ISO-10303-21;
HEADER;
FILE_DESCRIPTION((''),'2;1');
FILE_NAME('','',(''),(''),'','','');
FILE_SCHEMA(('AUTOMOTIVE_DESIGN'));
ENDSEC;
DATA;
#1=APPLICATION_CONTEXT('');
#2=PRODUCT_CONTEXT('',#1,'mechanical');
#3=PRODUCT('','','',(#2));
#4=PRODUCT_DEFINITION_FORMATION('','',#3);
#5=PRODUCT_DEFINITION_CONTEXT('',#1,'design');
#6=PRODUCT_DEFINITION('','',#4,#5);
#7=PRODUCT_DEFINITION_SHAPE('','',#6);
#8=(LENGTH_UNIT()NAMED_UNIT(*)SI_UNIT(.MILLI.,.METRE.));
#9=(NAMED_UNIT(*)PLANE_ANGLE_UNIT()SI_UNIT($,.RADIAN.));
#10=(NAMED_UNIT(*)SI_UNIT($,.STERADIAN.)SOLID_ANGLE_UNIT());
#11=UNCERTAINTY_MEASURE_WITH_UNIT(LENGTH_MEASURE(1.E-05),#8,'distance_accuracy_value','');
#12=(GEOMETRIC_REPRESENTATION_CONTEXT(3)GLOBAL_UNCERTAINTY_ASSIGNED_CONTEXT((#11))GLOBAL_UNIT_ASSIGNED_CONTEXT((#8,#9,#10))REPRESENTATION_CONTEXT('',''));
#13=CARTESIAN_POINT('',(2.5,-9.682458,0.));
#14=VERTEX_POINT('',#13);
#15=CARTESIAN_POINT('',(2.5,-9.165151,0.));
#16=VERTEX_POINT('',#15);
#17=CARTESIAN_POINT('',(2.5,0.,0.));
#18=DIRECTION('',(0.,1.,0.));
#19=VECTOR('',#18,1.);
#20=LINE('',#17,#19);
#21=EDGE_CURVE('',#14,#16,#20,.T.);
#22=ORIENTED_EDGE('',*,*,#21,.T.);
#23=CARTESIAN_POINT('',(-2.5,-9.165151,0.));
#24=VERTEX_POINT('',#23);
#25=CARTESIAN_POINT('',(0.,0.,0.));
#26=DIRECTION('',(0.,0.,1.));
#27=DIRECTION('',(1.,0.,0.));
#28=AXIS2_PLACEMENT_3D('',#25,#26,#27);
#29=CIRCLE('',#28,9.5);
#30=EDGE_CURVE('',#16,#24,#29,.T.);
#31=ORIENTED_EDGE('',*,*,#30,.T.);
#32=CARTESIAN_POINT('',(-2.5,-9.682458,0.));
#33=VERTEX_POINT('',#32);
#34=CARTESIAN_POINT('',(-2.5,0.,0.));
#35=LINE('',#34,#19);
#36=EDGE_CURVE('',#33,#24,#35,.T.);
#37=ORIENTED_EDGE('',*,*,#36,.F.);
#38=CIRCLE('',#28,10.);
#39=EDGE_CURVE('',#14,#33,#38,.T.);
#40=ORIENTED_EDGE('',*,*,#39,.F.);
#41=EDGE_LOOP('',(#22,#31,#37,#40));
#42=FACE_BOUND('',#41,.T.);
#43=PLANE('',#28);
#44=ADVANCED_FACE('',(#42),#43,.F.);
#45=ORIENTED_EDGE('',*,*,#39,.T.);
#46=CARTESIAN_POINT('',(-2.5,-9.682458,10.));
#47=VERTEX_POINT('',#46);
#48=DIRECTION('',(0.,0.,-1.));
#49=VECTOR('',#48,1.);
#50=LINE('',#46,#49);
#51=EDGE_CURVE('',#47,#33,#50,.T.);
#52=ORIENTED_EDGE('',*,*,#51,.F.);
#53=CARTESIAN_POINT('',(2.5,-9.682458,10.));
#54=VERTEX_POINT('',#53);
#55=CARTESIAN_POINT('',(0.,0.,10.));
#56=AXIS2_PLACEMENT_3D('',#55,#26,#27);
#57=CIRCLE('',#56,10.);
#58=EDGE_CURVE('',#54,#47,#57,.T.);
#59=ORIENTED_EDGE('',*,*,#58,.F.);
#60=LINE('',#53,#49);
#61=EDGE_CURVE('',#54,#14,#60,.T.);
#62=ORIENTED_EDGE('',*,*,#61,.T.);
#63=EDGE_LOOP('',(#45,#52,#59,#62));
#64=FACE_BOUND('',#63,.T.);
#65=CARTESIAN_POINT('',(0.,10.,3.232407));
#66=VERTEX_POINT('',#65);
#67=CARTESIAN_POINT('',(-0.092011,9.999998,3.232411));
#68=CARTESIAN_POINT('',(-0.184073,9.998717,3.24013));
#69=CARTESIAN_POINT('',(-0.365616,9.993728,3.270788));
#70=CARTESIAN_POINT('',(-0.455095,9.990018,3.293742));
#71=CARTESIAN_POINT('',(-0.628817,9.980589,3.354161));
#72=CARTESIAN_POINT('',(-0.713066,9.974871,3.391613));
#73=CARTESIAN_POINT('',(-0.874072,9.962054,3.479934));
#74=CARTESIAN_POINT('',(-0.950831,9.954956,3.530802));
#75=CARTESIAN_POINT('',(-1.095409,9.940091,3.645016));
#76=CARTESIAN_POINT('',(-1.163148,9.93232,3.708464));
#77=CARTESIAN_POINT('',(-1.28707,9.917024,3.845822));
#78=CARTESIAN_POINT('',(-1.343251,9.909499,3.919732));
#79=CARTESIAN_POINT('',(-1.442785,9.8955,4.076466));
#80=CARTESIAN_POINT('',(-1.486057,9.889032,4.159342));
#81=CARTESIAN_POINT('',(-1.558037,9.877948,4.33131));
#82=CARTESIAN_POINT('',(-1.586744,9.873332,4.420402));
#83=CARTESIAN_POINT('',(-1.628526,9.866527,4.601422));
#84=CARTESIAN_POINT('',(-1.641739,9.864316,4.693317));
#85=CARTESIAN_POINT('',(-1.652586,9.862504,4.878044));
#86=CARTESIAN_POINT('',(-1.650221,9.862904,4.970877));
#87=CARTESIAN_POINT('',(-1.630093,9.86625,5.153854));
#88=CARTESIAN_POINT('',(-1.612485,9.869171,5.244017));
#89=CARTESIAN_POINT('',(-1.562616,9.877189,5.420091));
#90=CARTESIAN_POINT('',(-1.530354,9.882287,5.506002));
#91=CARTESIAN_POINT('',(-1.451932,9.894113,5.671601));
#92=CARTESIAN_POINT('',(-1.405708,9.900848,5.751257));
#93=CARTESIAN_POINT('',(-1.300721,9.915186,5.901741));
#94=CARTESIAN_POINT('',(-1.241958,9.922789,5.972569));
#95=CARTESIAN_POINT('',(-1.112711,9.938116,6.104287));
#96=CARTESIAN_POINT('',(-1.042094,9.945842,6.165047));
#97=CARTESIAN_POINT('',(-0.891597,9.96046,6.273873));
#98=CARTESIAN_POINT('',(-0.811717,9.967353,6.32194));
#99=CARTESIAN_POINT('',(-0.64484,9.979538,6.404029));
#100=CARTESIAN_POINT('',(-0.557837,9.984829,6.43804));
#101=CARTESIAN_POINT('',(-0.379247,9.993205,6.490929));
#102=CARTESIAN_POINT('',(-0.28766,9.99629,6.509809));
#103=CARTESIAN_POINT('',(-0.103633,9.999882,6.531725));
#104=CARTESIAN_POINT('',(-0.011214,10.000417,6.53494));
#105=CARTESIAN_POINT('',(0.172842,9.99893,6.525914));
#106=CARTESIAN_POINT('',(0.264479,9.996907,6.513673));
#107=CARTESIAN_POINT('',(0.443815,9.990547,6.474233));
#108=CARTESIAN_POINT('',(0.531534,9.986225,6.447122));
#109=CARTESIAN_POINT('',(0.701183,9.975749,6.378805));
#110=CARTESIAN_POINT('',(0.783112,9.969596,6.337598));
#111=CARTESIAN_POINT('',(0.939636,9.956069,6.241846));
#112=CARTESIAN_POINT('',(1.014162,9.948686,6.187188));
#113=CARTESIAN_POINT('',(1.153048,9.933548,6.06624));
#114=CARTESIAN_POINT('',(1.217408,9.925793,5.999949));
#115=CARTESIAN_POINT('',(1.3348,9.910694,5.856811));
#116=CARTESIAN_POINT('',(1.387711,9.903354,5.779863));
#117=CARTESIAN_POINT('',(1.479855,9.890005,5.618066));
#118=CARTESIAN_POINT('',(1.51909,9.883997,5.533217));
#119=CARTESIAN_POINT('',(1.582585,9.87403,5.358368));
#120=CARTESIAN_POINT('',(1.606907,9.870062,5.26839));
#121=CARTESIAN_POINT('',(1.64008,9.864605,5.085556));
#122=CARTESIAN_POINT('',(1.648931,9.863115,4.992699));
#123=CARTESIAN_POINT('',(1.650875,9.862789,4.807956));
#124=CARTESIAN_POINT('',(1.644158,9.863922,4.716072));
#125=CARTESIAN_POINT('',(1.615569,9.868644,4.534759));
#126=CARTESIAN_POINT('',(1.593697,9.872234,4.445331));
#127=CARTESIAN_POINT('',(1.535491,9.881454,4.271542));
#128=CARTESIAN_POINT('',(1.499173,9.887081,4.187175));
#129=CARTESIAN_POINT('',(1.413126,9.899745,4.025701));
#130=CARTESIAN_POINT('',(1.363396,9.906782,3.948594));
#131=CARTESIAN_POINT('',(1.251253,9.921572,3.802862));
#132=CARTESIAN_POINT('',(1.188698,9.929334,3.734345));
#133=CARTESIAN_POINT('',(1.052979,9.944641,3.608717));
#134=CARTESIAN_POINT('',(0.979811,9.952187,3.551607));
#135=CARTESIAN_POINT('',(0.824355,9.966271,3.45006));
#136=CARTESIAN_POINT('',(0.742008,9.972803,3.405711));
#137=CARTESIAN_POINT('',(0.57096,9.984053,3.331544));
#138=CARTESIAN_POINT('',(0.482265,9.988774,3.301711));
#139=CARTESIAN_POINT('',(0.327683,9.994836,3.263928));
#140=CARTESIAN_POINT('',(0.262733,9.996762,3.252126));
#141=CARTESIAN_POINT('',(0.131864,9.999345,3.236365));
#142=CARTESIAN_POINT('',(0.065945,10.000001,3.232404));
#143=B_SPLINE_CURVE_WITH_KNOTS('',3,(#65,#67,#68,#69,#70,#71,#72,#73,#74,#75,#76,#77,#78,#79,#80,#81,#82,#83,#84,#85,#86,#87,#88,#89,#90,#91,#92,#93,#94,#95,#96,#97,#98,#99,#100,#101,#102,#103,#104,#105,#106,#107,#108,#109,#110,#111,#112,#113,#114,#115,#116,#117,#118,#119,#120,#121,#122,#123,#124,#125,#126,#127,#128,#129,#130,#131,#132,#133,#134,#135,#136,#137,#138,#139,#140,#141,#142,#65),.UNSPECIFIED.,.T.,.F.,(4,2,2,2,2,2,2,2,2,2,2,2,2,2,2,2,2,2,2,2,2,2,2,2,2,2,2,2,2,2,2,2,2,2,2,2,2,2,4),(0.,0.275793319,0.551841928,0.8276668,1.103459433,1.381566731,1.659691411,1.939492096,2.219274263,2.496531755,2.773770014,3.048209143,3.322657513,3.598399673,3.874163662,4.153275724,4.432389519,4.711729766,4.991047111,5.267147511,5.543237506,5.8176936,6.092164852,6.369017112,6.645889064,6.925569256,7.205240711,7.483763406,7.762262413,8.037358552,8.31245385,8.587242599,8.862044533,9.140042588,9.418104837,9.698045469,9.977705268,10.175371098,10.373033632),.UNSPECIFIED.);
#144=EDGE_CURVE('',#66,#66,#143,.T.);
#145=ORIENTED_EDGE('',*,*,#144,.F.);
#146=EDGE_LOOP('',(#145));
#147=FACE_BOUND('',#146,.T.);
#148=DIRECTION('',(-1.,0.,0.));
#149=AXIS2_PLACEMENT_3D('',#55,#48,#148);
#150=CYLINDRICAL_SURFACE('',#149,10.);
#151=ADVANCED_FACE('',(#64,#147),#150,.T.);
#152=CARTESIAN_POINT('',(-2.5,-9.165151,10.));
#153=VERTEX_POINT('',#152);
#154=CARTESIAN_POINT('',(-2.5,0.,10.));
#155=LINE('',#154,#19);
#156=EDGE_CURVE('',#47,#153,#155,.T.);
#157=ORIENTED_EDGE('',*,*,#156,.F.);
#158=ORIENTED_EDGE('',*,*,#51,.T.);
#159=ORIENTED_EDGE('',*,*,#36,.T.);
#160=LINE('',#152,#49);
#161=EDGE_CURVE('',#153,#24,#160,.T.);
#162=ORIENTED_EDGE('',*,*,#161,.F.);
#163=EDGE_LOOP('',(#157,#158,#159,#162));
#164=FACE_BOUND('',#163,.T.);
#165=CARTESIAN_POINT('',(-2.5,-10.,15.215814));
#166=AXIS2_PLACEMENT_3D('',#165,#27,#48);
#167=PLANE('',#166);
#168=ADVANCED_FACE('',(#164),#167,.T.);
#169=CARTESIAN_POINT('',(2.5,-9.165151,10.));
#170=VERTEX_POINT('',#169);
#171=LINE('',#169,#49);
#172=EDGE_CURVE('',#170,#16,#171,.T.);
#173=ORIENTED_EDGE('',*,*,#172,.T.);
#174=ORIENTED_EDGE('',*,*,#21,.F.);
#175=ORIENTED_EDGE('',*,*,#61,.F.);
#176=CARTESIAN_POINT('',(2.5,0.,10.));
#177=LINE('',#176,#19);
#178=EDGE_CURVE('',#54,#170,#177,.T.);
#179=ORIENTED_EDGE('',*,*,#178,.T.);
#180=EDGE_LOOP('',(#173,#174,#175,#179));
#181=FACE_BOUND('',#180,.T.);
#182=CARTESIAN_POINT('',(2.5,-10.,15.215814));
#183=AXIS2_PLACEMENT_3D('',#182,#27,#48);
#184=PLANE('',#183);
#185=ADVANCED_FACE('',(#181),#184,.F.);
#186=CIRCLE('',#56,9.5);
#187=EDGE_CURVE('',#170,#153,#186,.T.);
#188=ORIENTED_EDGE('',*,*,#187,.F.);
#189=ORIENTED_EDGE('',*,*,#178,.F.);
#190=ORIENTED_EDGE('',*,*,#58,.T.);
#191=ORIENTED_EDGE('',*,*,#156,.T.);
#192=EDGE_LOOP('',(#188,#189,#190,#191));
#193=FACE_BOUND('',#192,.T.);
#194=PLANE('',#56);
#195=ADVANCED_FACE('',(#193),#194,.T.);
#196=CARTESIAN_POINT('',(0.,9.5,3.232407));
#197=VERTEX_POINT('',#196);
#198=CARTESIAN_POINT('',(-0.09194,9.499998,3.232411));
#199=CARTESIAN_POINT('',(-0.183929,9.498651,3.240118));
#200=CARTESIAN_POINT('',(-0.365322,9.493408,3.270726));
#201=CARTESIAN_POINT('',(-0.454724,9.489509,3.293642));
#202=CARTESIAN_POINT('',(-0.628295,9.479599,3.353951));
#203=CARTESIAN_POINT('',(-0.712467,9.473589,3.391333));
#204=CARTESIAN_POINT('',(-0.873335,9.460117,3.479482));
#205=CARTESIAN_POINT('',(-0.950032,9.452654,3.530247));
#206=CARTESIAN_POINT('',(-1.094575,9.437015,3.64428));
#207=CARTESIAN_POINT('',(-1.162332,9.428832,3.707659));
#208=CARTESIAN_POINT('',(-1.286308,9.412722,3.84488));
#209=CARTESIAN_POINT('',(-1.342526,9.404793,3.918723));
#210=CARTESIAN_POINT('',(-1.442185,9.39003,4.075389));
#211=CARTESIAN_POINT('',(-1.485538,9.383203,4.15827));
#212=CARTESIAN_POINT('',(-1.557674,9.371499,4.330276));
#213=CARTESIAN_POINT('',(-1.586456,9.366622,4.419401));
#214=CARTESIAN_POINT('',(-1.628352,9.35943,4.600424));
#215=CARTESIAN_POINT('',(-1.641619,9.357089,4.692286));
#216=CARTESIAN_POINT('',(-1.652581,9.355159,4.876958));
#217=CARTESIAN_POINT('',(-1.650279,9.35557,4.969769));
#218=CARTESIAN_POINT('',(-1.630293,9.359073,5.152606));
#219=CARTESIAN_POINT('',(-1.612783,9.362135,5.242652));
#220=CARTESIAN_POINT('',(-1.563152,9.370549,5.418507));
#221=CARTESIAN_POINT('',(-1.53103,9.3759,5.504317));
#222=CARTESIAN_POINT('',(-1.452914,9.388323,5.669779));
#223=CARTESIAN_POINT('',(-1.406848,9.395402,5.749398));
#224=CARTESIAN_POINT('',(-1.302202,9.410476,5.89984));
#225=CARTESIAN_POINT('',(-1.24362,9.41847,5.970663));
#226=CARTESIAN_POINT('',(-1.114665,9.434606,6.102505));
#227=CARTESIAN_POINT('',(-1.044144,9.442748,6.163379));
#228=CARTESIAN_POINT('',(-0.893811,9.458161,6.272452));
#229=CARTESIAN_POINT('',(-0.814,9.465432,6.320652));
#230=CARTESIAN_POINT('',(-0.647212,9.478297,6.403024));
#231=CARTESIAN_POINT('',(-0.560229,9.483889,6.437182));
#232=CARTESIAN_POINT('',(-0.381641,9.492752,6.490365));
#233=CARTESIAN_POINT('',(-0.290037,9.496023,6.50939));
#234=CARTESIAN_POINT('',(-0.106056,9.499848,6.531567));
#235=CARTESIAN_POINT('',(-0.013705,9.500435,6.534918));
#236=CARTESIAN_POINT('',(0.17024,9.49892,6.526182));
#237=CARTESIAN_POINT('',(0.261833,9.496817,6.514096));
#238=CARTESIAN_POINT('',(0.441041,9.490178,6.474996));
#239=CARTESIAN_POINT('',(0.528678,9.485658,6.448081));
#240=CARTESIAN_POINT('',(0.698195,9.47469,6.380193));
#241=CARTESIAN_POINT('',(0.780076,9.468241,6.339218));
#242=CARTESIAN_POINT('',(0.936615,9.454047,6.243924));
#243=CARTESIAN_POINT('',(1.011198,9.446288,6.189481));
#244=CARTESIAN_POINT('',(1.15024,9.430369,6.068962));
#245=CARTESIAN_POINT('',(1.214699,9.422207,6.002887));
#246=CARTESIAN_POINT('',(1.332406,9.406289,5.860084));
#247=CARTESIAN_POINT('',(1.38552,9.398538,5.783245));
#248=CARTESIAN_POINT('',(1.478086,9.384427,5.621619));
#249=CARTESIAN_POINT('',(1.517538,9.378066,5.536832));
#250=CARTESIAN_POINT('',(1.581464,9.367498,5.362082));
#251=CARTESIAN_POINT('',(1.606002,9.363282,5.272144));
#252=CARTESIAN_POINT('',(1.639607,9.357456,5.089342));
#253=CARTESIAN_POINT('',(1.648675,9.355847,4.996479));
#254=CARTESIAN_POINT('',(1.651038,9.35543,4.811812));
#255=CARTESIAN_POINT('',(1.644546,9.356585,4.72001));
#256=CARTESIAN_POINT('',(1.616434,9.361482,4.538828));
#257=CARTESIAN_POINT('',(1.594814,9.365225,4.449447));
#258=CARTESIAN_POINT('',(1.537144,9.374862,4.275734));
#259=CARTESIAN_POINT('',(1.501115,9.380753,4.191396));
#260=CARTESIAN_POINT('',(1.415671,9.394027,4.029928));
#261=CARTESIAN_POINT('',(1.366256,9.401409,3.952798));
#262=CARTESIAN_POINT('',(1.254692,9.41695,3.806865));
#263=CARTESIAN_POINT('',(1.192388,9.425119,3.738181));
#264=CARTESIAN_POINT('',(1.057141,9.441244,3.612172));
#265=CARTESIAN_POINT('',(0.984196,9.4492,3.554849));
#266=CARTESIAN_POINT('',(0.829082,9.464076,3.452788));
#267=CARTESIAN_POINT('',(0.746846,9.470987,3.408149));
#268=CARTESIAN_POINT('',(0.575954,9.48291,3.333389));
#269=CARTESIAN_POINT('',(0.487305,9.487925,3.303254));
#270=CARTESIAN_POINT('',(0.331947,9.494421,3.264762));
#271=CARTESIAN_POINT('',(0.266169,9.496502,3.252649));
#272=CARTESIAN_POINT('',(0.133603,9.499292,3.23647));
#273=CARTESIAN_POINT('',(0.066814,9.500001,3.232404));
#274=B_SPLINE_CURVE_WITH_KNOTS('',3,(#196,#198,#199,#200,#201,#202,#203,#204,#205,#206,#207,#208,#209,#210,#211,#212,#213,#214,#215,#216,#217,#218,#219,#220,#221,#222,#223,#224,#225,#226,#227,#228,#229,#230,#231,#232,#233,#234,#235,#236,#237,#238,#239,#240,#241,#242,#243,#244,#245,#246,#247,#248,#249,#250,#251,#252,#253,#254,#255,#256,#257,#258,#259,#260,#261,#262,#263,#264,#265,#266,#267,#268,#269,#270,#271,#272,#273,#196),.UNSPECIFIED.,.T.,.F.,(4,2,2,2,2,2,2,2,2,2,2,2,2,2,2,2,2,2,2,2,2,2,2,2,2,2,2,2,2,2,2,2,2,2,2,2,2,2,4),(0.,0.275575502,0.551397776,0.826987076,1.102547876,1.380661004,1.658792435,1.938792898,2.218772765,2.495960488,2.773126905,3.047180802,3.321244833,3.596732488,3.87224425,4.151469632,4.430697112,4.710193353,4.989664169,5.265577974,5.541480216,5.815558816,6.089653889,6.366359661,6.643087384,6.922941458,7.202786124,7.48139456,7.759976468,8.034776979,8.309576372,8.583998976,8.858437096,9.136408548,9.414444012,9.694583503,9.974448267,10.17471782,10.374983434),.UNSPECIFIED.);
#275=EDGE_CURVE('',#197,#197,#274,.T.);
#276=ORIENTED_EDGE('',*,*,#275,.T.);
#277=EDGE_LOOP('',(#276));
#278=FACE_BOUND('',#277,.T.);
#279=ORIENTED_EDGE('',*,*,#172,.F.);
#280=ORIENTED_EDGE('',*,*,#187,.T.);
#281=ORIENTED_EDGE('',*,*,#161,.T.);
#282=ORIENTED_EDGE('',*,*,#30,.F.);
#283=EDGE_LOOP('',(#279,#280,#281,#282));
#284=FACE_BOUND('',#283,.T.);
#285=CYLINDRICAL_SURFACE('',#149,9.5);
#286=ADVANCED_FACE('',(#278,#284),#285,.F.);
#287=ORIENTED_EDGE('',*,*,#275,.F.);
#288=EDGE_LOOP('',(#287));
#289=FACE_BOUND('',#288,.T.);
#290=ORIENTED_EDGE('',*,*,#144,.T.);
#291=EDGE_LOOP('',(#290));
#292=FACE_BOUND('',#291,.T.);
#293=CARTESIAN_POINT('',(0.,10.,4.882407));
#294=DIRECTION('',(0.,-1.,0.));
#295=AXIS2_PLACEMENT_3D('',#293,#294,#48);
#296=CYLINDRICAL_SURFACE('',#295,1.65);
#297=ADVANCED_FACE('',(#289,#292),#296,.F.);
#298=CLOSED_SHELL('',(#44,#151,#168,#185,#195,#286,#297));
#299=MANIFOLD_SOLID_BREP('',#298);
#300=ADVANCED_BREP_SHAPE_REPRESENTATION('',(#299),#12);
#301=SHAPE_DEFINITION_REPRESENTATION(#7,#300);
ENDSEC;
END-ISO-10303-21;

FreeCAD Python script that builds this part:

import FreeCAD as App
import Part
import Sketcher
from FreeCAD import Vector
Q = App.Units.Quantity

doc = App.newDocument("Part")
params = doc.addObject("Spreadsheet::Sheet", "Params")
for row, (alias, value) in enumerate([
    ("sketch1_diameter", "20 mm"),
    ("sketch1_diameter2", "19 mm"),
    ("pad1_length", "10 mm"),
    ("sketch2_diameter", "3.3 mm"),
    ("sketch3_width", "5 mm"),
], start=1):
    params.set(f"A{row}", alias)
    params.set(f"B{row}", "=" + value)
    params.setAlias(f"B{row}", alias)

body = doc.addObject("PartDesign::Body", "Body")

# Sketch on XY plane
sketch1 = body.newObject("Sketcher::SketchObject", "Sketch")
sketch1.AttachmentSupport = (doc.getObject("XY_Plane"), [""])
sketch1.MapMode = "FlatFace"
sketch1.addGeometry([
    Part.Circle(Vector(0, 0, 0), Vector(0, 0, 1), 10),
    Part.Circle(Vector(0, 0, 0), Vector(0, 0, 1), 10),
], False)
sketch1.addConstraint([
    Sketcher.Constraint("Coincident", 0, 3, -1, 1),
    Sketcher.Constraint("Coincident", 1, 3, -1, 1),
    Sketcher.Constraint("Diameter", 0, Q("20 mm")),
    Sketcher.Constraint("Diameter", 1, Q("19 mm")),
])
sketch1.setExpression("Constraints[2]", "Params.sketch1_diameter")
sketch1.setExpression("Constraints[3]", "Params.sketch1_diameter2")
pad1 = body.newObject("PartDesign::Pad", "Pad")
pad1.Profile = sketch1
pad1.setExpression("Length", "Params.pad1_length")

# Sketch on XZ plane
sketch2 = body.newObject("Sketcher::SketchObject", "Sketch001")
sketch2.AttachmentSupport = (doc.getObject("XZ_Plane"), [""])
sketch2.MapMode = "FlatFace"
sketch2.addGeometry(Part.Circle(Vector(0, 4.9, 0), Vector(0, 0, 1), 1.6), False)
sketch2.addConstraint([
    Sketcher.Constraint("PointOnObject", 0, 3, -2),
    Sketcher.Constraint("Diameter", 0, Q("3.3 mm")),
    Sketcher.Constraint("DistanceY", -1, 1, 0, 3, Q("4.882407 mm")),
])
sketch2.setExpression("Constraints[1]", "Params.sketch2_diameter")
pocket1 = body.newObject("PartDesign::Pocket", "Pocket")
pocket1.Profile = sketch2
pocket1.Type = "ThroughAll"

# Sketch on XZ plane
sketch3 = body.newObject("Sketcher::SketchObject", "Sketch002")
sketch3.AttachmentSupport = (doc.getObject("XZ_Plane"), [""])
sketch3.MapMode = "FlatFace"
sketch3.addGeometry([
    Part.LineSegment(Vector(-2, -5, 0), Vector(-2, 15, 0)),
    Part.LineSegment(Vector(-2, 15, 0), Vector(2, 15, 0)),
    Part.LineSegment(Vector(2, 15, 0), Vector(2, -5, 0)),
    Part.LineSegment(Vector(2, -5, 0), Vector(-2, -5, 0)),
], False)
sketch3.addConstraint([
    Sketcher.Constraint("Coincident", 0, 2, 1, 1),
    Sketcher.Constraint("Coincident", 1, 2, 2, 1),
    Sketcher.Constraint("Coincident", 2, 2, 3, 1),
    Sketcher.Constraint("Coincident", 3, 2, 0, 1),
    Sketcher.Constraint("Vertical", 0),
    Sketcher.Constraint("Horizontal", 1),
    Sketcher.Constraint("Vertical", 2),
    Sketcher.Constraint("Horizontal", 3),
    Sketcher.Constraint("DistanceX", 1, 1, 1, 2, Q("5 mm")),
    Sketcher.Constraint("DistanceX", 0, 2, -1, 1, Q("2.5 mm")),
    Sketcher.Constraint("DistanceY", 2, 2, -1, 1, Q("5.450999 mm")),
    Sketcher.Constraint("DistanceY", 0, 1, 0, 2, Q("20.666813 mm")),
])
sketch3.setExpression("Constraints[8]", "Params.sketch3_width")
pocket2 = body.newObject("PartDesign::Pocket", "Pocket001")
pocket2.Profile = sketch3
pocket2.Type = "ThroughAll"
pocket2.Reversed = True

doc.recompute()
